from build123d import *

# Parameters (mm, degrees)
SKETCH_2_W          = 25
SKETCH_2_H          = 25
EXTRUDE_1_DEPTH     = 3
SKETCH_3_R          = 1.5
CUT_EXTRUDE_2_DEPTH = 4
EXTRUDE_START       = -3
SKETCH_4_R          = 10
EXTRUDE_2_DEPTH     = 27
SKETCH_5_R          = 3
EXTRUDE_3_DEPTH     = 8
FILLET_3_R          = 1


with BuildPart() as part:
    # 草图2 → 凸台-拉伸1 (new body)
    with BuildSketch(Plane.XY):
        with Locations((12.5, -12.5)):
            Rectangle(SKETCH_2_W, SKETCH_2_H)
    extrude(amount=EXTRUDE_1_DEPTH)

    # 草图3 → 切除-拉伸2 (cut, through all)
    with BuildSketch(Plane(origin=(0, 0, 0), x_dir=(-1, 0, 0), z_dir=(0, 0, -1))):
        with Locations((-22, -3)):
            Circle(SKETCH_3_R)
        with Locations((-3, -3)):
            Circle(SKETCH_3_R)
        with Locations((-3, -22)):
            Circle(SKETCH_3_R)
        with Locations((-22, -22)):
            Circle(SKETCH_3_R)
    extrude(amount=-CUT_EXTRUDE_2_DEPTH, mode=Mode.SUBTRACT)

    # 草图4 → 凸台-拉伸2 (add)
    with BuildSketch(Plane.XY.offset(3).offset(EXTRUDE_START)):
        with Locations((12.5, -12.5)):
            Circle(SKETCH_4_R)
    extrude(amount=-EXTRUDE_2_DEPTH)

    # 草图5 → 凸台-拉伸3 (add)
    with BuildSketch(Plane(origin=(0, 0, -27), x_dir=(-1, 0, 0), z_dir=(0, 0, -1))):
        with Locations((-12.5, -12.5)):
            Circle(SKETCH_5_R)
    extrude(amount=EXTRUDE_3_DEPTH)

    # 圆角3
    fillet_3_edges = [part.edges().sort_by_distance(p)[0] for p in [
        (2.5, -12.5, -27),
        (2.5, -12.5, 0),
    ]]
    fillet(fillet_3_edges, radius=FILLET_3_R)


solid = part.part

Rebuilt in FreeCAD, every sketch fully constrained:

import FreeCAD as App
import Part
import Sketcher
from FreeCAD import Vector


def edges_at(feature, points):
    """Names of the edges that pass closest to the given points."""
    edges = feature.Shape.Edges
    near = lambda p: min(range(len(edges)), key=lambda i: edges[i].distToShape(Part.Vertex(*p))[0])
    return sorted({f"Edge{near(p) + 1}" for p in points})

doc = App.newDocument("Part")
body = doc.addObject("PartDesign::Body", "Body")

sketch1 = doc.addObject("Sketcher::SketchObject", "Sketch")
body.addObject(sketch1)
sketch1.AttachmentSupport = (doc.XY_Plane, [""])
sketch1.MapMode = "FlatFace"
sketch1.addGeometry(Part.LineSegment(Vector(0, 0, 0), Vector(0, -25, 0)), False)
sketch1.addGeometry(Part.LineSegment(Vector(0, -25, 0), Vector(25, -25, 0)), False)
sketch1.addGeometry(Part.LineSegment(Vector(25, -25, 0), Vector(25, 0, 0)), False)
sketch1.addGeometry(Part.LineSegment(Vector(25, 0, 0), Vector(0, 0, 0)), False)
sketch1.addConstraint(Sketcher.Constraint("Coincident", 0, 2, 1, 1))
sketch1.addConstraint(Sketcher.Constraint("Coincident", 1, 2, 2, 1))
sketch1.addConstraint(Sketcher.Constraint("Coincident", 2, 2, 3, 1))
sketch1.addConstraint(Sketcher.Constraint("Coincident", 3, 2, 0, 1))
sketch1.addConstraint(Sketcher.Constraint("Vertical", 0))
sketch1.addConstraint(Sketcher.Constraint("Horizontal", 1))
sketch1.addConstraint(Sketcher.Constraint("Vertical", 2))
sketch1.addConstraint(Sketcher.Constraint("Horizontal", 3))
sketch1.addConstraint(Sketcher.Constraint("Coincident", 3, 2, -1, 1))
sketch1.addConstraint(Sketcher.Constraint("Equal", 3, 0))
sketch1.addConstraint(Sketcher.Constraint("DistanceX", 1, 1, 1, 2, 25.0))
pad1 = doc.addObject("PartDesign::Pad", "Pad")
body.addObject(pad1)
pad1.Profile = sketch1
pad1.Length = 3

sketch2 = doc.addObject("Sketcher::SketchObject", "Sketch001")
body.addObject(sketch2)
sketch2.AttachmentSupport = (doc.XY_Plane, [""])
sketch2.MapMode = "FlatFace"
sketch2.addGeometry(Part.Circle(Vector(22, -3, 0), Vector(0, 0, 1), 1.5), False)
sketch2.addGeometry(Part.Circle(Vector(3, -3, 0), Vector(0, 0, 1), 1.5), False)
sketch2.addGeometry(Part.Circle(Vector(3, -22, 0), Vector(0, 0, 1), 1.5), False)
sketch2.addGeometry(Part.Circle(Vector(22, -22, 0), Vector(0, 0, 1), 1.5), False)
sketch2.addConstraint(Sketcher.Constraint("Equal", 0, 1))
sketch2.addConstraint(Sketcher.Constraint("Equal", 1, 2))
sketch2.addConstraint(Sketcher.Constraint("Equal", 2, 3))
sketch2.addConstraint(Sketcher.Constraint("Horizontal", 0, 3, 1, 3))
sketch2.addConstraint(Sketcher.Constraint("Horizontal", 2, 3, 3, 3))
sketch2.addConstraint(Sketcher.Constraint("Vertical", 1, 3, 2, 3))
sketch2.addConstraint(Sketcher.Constraint("Vertical", 0, 3, 3, 3))
sketch2.addConstraint(Sketcher.Constraint("Diameter", 0, 3.0))
sketch2.addConstraint(Sketcher.Constraint("DistanceX", -1, 1, 0, 3, 22.0))
sketch2.addConstraint(Sketcher.Constraint("DistanceY", 0, 3, -1, 1, 3.0))
sketch2.addConstraint(Sketcher.Constraint("DistanceX", -1, 1, 1, 3, 3.0))
sketch2.addConstraint(Sketcher.Constraint("DistanceY", 2, 3, -1, 1, 22.0))
pocket1 = doc.addObject("PartDesign::Pocket", "Pocket")
body.addObject(pocket1)
pocket1.Profile = sketch2
pocket1.Type = "ThroughAll"
pocket1.Reversed = True

sketch3 = doc.addObject("Sketcher::SketchObject", "Sketch002")
body.addObject(sketch3)
sketch3.AttachmentSupport = (doc.XY_Plane, [""])
sketch3.MapMode = "FlatFace"
sketch3.addGeometry(Part.Circle(Vector(12, -12, 0), Vector(0, 0, 1), 10), False)
sketch3.addConstraint(Sketcher.Constraint("Diameter", 0, 20.0))
sketch3.addConstraint(Sketcher.Constraint("DistanceX", -1, 1, 0, 3, 12.5))
sketch3.addConstraint(Sketcher.Constraint("DistanceY", 0, 3, -1, 1, 12.5))
pad2 = doc.addObject("PartDesign::Pad", "Pad001")
body.addObject(pad2)
pad2.Profile = sketch3
pad2.Length = 27
pad2.Reversed = True

sketch4 = doc.addObject("Sketcher::SketchObject", "Sketch003")
body.addObject(sketch4)
sketch4.AttachmentSupport = (doc.XY_Plane, [""])
sketch4.MapMode = "FlatFace"
sketch4.AttachmentOffset = App.Placement(Vector(0, 0, -27), App.Rotation())
sketch4.addGeometry(Part.Circle(Vector(12.5, -12.5, 0), Vector(0, 0, 1), 3), False)
sketch4.addConstraint(Sketcher.Constraint("Diameter", 0, 6.0))
sketch4.addConstraint(Sketcher.Constraint("DistanceX", -1, 1, 0, 3, 12.5))
sketch4.addConstraint(Sketcher.Constraint("DistanceY", 0, 3, -1, 1, 12.5))
pad3 = doc.addObject("PartDesign::Pad", "Pad002")
body.addObject(pad3)
pad3.Profile = sketch4
pad3.Length = 8
pad3.Reversed = True
doc.recompute()

fillet = doc.addObject("PartDesign::Fillet", "Fillet")
body.addObject(fillet)
fillet.Base = (pad3, edges_at(pad3, [(2.5, -12.5, -27), (2.5, -12.5, 0)]))
fillet.Radius = 1

doc.recompute()
